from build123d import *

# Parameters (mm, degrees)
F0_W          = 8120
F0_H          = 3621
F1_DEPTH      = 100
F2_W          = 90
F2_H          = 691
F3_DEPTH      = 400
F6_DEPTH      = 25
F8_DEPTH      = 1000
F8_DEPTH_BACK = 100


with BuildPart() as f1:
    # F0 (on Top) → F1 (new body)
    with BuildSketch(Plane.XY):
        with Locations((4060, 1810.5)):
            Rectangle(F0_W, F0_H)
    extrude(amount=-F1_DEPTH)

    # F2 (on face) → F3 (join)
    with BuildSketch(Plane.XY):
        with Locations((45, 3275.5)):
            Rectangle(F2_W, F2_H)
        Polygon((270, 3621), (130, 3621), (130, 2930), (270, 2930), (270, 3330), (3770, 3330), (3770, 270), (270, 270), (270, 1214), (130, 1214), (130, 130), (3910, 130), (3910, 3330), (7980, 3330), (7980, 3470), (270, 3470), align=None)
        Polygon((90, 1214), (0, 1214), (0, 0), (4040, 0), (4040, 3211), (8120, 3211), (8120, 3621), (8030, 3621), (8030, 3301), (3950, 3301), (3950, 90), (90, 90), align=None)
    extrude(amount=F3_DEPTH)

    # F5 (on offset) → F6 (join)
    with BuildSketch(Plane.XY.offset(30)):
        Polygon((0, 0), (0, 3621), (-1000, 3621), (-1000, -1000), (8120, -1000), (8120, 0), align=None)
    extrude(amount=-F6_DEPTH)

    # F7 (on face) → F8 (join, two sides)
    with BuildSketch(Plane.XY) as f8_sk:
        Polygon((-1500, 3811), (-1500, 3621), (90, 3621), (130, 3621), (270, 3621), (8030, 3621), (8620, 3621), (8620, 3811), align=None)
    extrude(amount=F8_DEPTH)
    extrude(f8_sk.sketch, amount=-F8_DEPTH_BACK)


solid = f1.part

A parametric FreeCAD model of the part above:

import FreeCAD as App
import Part
import Sketcher


def add_polygon(sketch, points):
    """Adds a closed chain of lines whose ends are joined by coincident constraints."""
    first, n = sketch.GeometryCount, len(points)
    for a, b in zip(points, points[1:] + points[:1]):
        sketch.addGeometry(Part.LineSegment(App.Vector(*a, 0), App.Vector(*b, 0)), False)
    for i in range(n):
        sketch.addConstraint(Sketcher.Constraint("Coincident", first + i, 2, first + (i + 1) % n, 1))

doc = App.newDocument("Part")
body = doc.addObject("PartDesign::Body", "Body")

# Sketch on XY plane
sketch1 = body.newObject("Sketcher::SketchObject", "Sketch")
sketch1.AttachmentSupport = (doc.getObject("XY_Plane"), [""])
sketch1.MapMode = "FlatFace"
add_polygon(sketch1, [(0, 3621), (0, 0), (8120, 0), (8120, 3621)])  # lines 0-3
sketch1.addConstraint([
    Sketcher.Constraint("Vertical", 0),
    Sketcher.Constraint("Horizontal", 1),
    Sketcher.Constraint("Vertical", 2),
    Sketcher.Constraint("Horizontal", 3),
    Sketcher.Constraint("Coincident", 0, 2, -1, 1),
    Sketcher.Constraint("DistanceX", 1, 1, 1, 2, 8120.0),
    Sketcher.Constraint("DistanceY", 0, 2, 0, 1, 3621.0),
])
pad1 = body.newObject("PartDesign::Pad", "Pad")
pad1.Profile = sketch1
pad1.Length = 100
pad1.Reversed = True

# Sketch on XY plane
sketch2 = body.newObject("Sketcher::SketchObject", "Sketch001")
sketch2.AttachmentSupport = (doc.getObject("XY_Plane"), [""])
sketch2.MapMode = "FlatFace"
add_polygon(sketch2, [(0, 3621), (0, 2930), (90, 2930), (90, 3621)])  # lines 0-3
add_polygon(sketch2, [(270, 3621), (130, 3621), (130, 2930), (270, 2930), (270, 3330), (3770, 3330), (3770, 270), (270, 270), (270, 1214), (130, 1214), (130, 130), (3910, 130), (3910, 3330), (7980, 3330), (7980, 3470), (270, 3470)])  # lines 4-19
add_polygon(sketch2, [(90, 1214), (0, 1214), (0, 0), (4040, 0), (4040, 3211), (8120, 3211), (8120, 3621), (8030, 3621), (8030, 3301), (3950, 3301), (3950, 90), (90, 90)])  # lines 20-31
sketch2.addConstraint([
    Sketcher.Constraint("Vertical", 0),
    Sketcher.Constraint("Horizontal", 1),
    Sketcher.Constraint("Vertical", 2),
    Sketcher.Constraint("Horizontal", 3),
    Sketcher.Constraint("Horizontal", 4),
    Sketcher.Constraint("Vertical", 5),
    Sketcher.Constraint("Horizontal", 6),
    Sketcher.Constraint("Vertical", 7),
    Sketcher.Constraint("Horizontal", 8),
    Sketcher.Constraint("Vertical", 9),
    Sketcher.Constraint("Horizontal", 10),
    Sketcher.Constraint("Vertical", 11),
    Sketcher.Constraint("Horizontal", 12),
    Sketcher.Constraint("Vertical", 13),
    Sketcher.Constraint("Horizontal", 14),
    Sketcher.Constraint("Vertical", 15),
    Sketcher.Constraint("Horizontal", 16),
    Sketcher.Constraint("Vertical", 17),
    Sketcher.Constraint("Horizontal", 18),
    Sketcher.Constraint("Vertical", 19),
    Sketcher.Constraint("Horizontal", 20),
    Sketcher.Constraint("Vertical", 21),
    Sketcher.Constraint("Horizontal", 22),
    Sketcher.Constraint("Vertical", 23),
    Sketcher.Constraint("Horizontal", 24),
    Sketcher.Constraint("Vertical", 25),
    Sketcher.Constraint("Horizontal", 26),
    Sketcher.Constraint("Vertical", 27),
    Sketcher.Constraint("Horizontal", 28),
    Sketcher.Constraint("Vertical", 29),
    Sketcher.Constraint("Horizontal", 30),
    Sketcher.Constraint("Vertical", 31),
    Sketcher.Constraint("Coincident", 21, 2, -1, 1),
    Sketcher.Constraint("PointOnObject", 0, 2, -2),
    Sketcher.Constraint("Horizontal", 3, 2, 4, 2),
    Sketcher.Constraint("Horizontal", 1, 2, 5, 2),
    Sketcher.Constraint("Horizontal", 8, 2, 15, 2),
    Sketcher.Constraint("Horizontal", 12, 2, 20, 2),
    Sketcher.Constraint("Horizontal", 19, 2, 25, 2),
    Sketcher.Constraint("Vertical", 7, 2, 10, 2),
    Sketcher.Constraint("Vertical", 5, 2, 12, 2),
    Sketcher.Constraint("Vertical", 11, 2, 18, 2),
    Sketcher.Constraint("Vertical", 2, 2, 30, 2),
    Sketcher.Constraint("Equal", 20, 26),
    Sketcher.Constraint("Equal", 24, 28),
    Sketcher.Constraint("Equal", 12, 17),
    Sketcher.Constraint("Equal", 23, 29),
    Sketcher.Constraint("DistanceX", 1, 1, 1, 2, 90.0),
    Sketcher.Constraint("DistanceX", 4, 2, 4, 1, 140.0),
    Sketcher.Constraint("DistanceX", 8, 1, 8, 2, 3500.0),
    Sketcher.Constraint("DistanceX", 14, 1, 14, 2, 3780.0),
    Sketcher.Constraint("DistanceX", 16, 1, 16, 2, 4070.0),
    Sketcher.Constraint("DistanceX", 22, 1, 22, 2, 4040.0),
    Sketcher.Constraint("DistanceX", 24, 1, 24, 2, 4080.0),
    Sketcher.Constraint("DistanceY", 0, 2, 0, 1, 691.0),
    Sketcher.Constraint("DistanceY", 7, 1, 7, 2, 400.0),
    Sketcher.Constraint("DistanceY", 9, 2, 9, 1, 3060.0),
    Sketcher.Constraint("DistanceY", 11, 1, 11, 2, 944.0),
    Sketcher.Constraint("DistanceY", 13, 2, 13, 1, 1084.0),
    Sketcher.Constraint("DistanceY", 21, 2, 21, 1, 1214.0),
    Sketcher.Constraint("DistanceY", 23, 1, 23, 2, 3211.0),
    Sketcher.Constraint("DistanceY", 27, 2, 27, 1, 320.0),
    Sketcher.Constraint("DistanceX", -1, 1, 4, 2, 130.0),
])
pad2 = body.newObject("PartDesign::Pad", "Pad001")
pad2.Profile = sketch2
pad2.Length = 400

# Sketch on XY plane
sketch3 = body.newObject("Sketcher::SketchObject", "Sketch002")
sketch3.AttachmentSupport = (doc.getObject("XY_Plane"), [""])
sketch3.MapMode = "FlatFace"
sketch3.AttachmentOffset = App.Placement(App.Vector(0, 0, 30), App.Rotation())
add_polygon(sketch3, [(0, 0), (0, 3621), (-1000, 3621), (-1000, -1000), (8120, -1000), (8120, 0)])  # lines 0-5
sketch3.addConstraint([
    Sketcher.Constraint("Vertical", 0),
    Sketcher.Constraint("Horizontal", 1),
    Sketcher.Constraint("Vertical", 2),
    Sketcher.Constraint("Horizontal", 3),
    Sketcher.Constraint("Vertical", 4),
    Sketcher.Constraint("Horizontal", 5),
    Sketcher.Constraint("Coincident", 5, 2, -1, 1),
    Sketcher.Constraint("Equal", 1, 4),
    Sketcher.Constraint("DistanceX", 1, 2, 1, 1, 1000.0),
    Sketcher.Constraint("DistanceX", 3, 1, 3, 2, 9120.0),
    Sketcher.Constraint("DistanceY", 0, 1, 0, 2, 3621.0),
])
pad3 = body.newObject("PartDesign::Pad", "Pad002")
pad3.Profile = sketch3
pad3.Length = 25
pad3.Reversed = True

# Sketch on XY plane
sketch4 = body.newObject("Sketcher::SketchObject", "Sketch003")
sketch4.AttachmentSupport = (doc.getObject("XY_Plane"), [""])
sketch4.MapMode = "FlatFace"
add_polygon(sketch4, [(-1500, 3811), (-1500, 3621), (8620, 3621), (8620, 3811)])  # lines 0-3
sketch4.addConstraint([
    Sketcher.Constraint("Vertical", 0),
    Sketcher.Constraint("Horizontal", 1),
    Sketcher.Constraint("Vertical", 2),
    Sketcher.Constraint("Horizontal", 3),
    Sketcher.Constraint("DistanceX", 1, 1, 1, 2, 10120.0),
    Sketcher.Constraint("DistanceY", 0, 2, 0, 1, 190.0),
    Sketcher.Constraint("DistanceX", 0, 2, -1, 1, 1500.0),
    Sketcher.Constraint("DistanceY", -1, 1, 0, 2, 3621.0),
])
pad4 = body.newObject("PartDesign::Pad", "Pad003")
pad4.Profile = sketch4
pad4.Type = "TwoLengths"
pad4.Length = 1000
pad4.Length2 = 100

doc.recompute()
